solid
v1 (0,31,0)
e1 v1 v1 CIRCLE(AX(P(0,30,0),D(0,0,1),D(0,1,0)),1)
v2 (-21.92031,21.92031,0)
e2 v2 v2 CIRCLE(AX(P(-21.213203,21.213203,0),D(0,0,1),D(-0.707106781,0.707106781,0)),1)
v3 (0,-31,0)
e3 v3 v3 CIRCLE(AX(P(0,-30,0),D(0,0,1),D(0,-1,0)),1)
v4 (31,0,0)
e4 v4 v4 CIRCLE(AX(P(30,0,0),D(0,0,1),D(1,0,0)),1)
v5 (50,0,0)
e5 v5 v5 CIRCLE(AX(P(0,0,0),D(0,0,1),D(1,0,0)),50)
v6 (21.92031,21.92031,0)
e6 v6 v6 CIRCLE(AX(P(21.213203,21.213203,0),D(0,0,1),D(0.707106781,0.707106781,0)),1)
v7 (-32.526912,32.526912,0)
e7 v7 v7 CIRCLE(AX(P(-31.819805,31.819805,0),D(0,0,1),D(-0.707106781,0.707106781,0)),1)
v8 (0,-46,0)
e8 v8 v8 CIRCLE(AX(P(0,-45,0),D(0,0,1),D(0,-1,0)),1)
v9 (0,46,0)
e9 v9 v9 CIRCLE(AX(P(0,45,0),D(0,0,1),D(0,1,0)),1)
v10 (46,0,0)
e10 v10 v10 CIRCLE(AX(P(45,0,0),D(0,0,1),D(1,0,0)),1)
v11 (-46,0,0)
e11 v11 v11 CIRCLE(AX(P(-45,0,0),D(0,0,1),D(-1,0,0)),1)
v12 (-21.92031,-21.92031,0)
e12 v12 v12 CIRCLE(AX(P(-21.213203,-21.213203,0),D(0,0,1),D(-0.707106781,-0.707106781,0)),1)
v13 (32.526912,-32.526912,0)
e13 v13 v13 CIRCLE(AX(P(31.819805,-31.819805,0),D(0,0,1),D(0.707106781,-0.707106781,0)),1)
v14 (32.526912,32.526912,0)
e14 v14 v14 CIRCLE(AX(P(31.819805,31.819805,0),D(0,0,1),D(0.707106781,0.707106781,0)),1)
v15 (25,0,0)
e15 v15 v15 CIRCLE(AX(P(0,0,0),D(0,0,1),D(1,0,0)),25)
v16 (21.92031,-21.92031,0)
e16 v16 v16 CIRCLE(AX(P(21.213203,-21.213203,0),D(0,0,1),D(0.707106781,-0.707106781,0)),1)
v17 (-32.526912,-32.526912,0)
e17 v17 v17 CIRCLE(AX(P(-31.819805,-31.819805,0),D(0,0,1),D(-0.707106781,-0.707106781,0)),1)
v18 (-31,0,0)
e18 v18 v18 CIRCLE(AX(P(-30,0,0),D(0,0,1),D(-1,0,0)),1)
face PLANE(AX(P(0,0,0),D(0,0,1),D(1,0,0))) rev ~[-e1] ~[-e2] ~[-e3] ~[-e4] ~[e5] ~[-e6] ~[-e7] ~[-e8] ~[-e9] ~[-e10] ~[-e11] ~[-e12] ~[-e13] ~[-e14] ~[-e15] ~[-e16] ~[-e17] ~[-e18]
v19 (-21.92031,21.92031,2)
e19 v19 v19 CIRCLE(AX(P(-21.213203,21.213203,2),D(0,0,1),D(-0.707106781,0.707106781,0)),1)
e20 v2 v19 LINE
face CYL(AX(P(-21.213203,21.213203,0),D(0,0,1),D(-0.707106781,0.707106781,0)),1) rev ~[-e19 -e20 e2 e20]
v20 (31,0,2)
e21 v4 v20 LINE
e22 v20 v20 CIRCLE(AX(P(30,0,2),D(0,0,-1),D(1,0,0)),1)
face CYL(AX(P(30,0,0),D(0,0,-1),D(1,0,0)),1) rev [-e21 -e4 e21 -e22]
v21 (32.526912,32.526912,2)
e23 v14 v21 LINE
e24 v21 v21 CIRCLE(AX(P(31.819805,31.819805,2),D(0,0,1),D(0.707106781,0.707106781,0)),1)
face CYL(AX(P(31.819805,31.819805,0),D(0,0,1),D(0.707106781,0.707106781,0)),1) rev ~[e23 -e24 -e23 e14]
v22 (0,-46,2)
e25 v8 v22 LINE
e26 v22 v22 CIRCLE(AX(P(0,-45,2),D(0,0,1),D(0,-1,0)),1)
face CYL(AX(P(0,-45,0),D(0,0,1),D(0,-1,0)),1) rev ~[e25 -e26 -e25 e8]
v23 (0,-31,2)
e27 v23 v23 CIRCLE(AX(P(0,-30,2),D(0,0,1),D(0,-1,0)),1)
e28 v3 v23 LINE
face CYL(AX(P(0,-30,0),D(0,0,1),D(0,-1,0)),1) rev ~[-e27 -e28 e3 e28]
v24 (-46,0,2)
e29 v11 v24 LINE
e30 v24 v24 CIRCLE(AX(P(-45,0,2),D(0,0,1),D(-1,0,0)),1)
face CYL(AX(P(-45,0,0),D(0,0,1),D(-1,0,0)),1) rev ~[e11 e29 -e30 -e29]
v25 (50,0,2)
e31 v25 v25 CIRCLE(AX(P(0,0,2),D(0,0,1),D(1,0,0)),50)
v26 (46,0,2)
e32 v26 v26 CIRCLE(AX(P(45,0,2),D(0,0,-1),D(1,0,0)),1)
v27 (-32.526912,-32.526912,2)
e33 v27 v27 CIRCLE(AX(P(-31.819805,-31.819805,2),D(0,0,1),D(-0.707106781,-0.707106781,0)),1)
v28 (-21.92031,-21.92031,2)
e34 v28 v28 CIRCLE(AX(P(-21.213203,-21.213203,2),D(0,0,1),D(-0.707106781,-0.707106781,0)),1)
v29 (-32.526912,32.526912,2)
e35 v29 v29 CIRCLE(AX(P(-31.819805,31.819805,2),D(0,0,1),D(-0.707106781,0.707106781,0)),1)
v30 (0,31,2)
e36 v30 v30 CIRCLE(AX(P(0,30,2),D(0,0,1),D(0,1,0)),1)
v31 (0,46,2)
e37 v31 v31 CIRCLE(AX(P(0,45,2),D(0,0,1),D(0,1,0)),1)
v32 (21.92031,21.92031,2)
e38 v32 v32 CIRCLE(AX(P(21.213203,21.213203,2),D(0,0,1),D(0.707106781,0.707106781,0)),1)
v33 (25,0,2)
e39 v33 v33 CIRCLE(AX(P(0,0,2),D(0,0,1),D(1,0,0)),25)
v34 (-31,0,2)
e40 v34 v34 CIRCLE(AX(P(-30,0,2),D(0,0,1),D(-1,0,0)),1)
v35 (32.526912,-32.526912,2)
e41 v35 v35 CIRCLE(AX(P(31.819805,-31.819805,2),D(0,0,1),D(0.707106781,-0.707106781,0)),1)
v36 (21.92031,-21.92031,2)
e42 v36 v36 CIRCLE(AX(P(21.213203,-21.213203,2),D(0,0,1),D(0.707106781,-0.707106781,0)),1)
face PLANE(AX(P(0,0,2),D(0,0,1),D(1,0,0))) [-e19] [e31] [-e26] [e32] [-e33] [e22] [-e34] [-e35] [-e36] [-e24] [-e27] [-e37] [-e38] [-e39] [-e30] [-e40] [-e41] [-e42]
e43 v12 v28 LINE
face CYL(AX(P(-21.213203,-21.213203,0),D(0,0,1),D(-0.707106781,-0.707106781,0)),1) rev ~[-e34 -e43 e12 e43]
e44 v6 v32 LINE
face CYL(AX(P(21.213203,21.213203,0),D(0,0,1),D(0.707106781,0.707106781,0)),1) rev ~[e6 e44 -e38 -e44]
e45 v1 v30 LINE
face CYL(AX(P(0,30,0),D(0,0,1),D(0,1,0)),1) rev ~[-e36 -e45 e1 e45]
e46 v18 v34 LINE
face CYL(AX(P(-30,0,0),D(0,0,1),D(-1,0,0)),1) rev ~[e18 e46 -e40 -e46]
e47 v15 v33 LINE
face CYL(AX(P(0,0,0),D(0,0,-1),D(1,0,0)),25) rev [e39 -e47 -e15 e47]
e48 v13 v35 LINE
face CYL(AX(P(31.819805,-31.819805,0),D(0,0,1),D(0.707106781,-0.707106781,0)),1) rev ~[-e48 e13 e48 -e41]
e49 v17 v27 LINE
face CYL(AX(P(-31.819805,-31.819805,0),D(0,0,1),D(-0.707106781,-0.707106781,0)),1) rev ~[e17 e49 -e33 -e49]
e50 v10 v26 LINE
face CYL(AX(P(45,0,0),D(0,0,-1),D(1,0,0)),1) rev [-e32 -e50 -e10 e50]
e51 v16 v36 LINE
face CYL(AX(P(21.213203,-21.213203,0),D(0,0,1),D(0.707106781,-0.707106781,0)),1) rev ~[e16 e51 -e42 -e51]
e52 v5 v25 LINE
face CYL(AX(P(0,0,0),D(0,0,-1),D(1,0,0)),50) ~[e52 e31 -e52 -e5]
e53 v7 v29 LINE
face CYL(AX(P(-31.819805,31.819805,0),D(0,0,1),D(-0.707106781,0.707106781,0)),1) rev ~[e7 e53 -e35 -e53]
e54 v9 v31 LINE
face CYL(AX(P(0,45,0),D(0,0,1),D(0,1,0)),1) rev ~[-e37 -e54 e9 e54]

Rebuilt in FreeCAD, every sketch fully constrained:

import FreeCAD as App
import Part
import Sketcher
from FreeCAD import Vector
Q = App.Units.Quantity

doc = App.newDocument("Part")
params = doc.addObject("Spreadsheet::Sheet", "Params")
for row, (alias, value) in enumerate([
    ("sketch1_diameter", "100 mm"),
    ("sketch1_diameter2", "50 mm"),
    ("pad1_length", "2 mm"),
    ("sketch2_diameter", "2 mm"),
], start=1):
    params.set(f"A{row}", alias)
    params.set(f"B{row}", "=" + value)
    params.setAlias(f"B{row}", alias)

body = doc.addObject("PartDesign::Body", "Body")

sketch1 = body.newObject("Sketcher::SketchObject", "Sketch")
sketch1.AttachmentSupport = (doc.getObject("XY_Plane"), [""])
sketch1.MapMode = "FlatFace"
sketch1.addGeometry([
    Part.Circle(Vector(0, 0, 0), Vector(0, 0, 1), 50),
    Part.Circle(Vector(0, 0, 0), Vector(0, 0, 1), 25),
], False)
sketch1.addConstraint([
    Sketcher.Constraint("Coincident", 0, 3, -1, 1),
    Sketcher.Constraint("Coincident", 1, 3, -1, 1),
    Sketcher.Constraint("Diameter", 0, Q("100 mm")),
    Sketcher.Constraint("Diameter", 1, Q("50 mm")),
])
sketch1.setExpression("Constraints[2]", "Params.sketch1_diameter")
sketch1.setExpression("Constraints[3]", "Params.sketch1_diameter2")
pad1 = body.newObject("PartDesign::Pad", "Pad")
pad1.Profile = sketch1
pad1.setExpression("Length", "Params.pad1_length")

sketch2 = body.newObject("Sketcher::SketchObject", "Sketch001")
sketch2.AttachmentSupport = (doc.getObject("XY_Plane"), [""])
sketch2.MapMode = "FlatFace"
sketch2.addGeometry([
    Part.Circle(Vector(30, 0, 0), Vector(0, 0, 1), 1),
    Part.Circle(Vector(45, 0, 0), Vector(0, 0, 1), 1),
], False)
sketch2.addConstraint([
    Sketcher.Constraint("Equal", 0, 1),
    Sketcher.Constraint("PointOnObject", 0, 3, -1),
    Sketcher.Constraint("PointOnObject", 1, 3, -1),
    Sketcher.Constraint("Diameter", 0, Q("2 mm")),
    Sketcher.Constraint("DistanceX", -1, 1, 0, 3, Q("30 mm")),
    Sketcher.Constraint("DistanceX", -1, 1, 1, 3, Q("45 mm")),
])
sketch2.setExpression("Constraints[3]", "Params.sketch2_diameter")
pocket1 = body.newObject("PartDesign::Pocket", "Pocket")
pocket1.Profile = sketch2
pocket1.Type = "ThroughAll"
pocket1.Midplane = True
doc.recompute()

polarpattern = body.newObject("PartDesign::PolarPattern", "PolarPattern")
polarpattern.Originals = [pocket1]
polarpattern.Axis = (doc.getObject("Z_Axis"), [""])
polarpattern.Angle = 360
polarpattern.Occurrences = 8
body.Tip = polarpattern

doc.recompute()
